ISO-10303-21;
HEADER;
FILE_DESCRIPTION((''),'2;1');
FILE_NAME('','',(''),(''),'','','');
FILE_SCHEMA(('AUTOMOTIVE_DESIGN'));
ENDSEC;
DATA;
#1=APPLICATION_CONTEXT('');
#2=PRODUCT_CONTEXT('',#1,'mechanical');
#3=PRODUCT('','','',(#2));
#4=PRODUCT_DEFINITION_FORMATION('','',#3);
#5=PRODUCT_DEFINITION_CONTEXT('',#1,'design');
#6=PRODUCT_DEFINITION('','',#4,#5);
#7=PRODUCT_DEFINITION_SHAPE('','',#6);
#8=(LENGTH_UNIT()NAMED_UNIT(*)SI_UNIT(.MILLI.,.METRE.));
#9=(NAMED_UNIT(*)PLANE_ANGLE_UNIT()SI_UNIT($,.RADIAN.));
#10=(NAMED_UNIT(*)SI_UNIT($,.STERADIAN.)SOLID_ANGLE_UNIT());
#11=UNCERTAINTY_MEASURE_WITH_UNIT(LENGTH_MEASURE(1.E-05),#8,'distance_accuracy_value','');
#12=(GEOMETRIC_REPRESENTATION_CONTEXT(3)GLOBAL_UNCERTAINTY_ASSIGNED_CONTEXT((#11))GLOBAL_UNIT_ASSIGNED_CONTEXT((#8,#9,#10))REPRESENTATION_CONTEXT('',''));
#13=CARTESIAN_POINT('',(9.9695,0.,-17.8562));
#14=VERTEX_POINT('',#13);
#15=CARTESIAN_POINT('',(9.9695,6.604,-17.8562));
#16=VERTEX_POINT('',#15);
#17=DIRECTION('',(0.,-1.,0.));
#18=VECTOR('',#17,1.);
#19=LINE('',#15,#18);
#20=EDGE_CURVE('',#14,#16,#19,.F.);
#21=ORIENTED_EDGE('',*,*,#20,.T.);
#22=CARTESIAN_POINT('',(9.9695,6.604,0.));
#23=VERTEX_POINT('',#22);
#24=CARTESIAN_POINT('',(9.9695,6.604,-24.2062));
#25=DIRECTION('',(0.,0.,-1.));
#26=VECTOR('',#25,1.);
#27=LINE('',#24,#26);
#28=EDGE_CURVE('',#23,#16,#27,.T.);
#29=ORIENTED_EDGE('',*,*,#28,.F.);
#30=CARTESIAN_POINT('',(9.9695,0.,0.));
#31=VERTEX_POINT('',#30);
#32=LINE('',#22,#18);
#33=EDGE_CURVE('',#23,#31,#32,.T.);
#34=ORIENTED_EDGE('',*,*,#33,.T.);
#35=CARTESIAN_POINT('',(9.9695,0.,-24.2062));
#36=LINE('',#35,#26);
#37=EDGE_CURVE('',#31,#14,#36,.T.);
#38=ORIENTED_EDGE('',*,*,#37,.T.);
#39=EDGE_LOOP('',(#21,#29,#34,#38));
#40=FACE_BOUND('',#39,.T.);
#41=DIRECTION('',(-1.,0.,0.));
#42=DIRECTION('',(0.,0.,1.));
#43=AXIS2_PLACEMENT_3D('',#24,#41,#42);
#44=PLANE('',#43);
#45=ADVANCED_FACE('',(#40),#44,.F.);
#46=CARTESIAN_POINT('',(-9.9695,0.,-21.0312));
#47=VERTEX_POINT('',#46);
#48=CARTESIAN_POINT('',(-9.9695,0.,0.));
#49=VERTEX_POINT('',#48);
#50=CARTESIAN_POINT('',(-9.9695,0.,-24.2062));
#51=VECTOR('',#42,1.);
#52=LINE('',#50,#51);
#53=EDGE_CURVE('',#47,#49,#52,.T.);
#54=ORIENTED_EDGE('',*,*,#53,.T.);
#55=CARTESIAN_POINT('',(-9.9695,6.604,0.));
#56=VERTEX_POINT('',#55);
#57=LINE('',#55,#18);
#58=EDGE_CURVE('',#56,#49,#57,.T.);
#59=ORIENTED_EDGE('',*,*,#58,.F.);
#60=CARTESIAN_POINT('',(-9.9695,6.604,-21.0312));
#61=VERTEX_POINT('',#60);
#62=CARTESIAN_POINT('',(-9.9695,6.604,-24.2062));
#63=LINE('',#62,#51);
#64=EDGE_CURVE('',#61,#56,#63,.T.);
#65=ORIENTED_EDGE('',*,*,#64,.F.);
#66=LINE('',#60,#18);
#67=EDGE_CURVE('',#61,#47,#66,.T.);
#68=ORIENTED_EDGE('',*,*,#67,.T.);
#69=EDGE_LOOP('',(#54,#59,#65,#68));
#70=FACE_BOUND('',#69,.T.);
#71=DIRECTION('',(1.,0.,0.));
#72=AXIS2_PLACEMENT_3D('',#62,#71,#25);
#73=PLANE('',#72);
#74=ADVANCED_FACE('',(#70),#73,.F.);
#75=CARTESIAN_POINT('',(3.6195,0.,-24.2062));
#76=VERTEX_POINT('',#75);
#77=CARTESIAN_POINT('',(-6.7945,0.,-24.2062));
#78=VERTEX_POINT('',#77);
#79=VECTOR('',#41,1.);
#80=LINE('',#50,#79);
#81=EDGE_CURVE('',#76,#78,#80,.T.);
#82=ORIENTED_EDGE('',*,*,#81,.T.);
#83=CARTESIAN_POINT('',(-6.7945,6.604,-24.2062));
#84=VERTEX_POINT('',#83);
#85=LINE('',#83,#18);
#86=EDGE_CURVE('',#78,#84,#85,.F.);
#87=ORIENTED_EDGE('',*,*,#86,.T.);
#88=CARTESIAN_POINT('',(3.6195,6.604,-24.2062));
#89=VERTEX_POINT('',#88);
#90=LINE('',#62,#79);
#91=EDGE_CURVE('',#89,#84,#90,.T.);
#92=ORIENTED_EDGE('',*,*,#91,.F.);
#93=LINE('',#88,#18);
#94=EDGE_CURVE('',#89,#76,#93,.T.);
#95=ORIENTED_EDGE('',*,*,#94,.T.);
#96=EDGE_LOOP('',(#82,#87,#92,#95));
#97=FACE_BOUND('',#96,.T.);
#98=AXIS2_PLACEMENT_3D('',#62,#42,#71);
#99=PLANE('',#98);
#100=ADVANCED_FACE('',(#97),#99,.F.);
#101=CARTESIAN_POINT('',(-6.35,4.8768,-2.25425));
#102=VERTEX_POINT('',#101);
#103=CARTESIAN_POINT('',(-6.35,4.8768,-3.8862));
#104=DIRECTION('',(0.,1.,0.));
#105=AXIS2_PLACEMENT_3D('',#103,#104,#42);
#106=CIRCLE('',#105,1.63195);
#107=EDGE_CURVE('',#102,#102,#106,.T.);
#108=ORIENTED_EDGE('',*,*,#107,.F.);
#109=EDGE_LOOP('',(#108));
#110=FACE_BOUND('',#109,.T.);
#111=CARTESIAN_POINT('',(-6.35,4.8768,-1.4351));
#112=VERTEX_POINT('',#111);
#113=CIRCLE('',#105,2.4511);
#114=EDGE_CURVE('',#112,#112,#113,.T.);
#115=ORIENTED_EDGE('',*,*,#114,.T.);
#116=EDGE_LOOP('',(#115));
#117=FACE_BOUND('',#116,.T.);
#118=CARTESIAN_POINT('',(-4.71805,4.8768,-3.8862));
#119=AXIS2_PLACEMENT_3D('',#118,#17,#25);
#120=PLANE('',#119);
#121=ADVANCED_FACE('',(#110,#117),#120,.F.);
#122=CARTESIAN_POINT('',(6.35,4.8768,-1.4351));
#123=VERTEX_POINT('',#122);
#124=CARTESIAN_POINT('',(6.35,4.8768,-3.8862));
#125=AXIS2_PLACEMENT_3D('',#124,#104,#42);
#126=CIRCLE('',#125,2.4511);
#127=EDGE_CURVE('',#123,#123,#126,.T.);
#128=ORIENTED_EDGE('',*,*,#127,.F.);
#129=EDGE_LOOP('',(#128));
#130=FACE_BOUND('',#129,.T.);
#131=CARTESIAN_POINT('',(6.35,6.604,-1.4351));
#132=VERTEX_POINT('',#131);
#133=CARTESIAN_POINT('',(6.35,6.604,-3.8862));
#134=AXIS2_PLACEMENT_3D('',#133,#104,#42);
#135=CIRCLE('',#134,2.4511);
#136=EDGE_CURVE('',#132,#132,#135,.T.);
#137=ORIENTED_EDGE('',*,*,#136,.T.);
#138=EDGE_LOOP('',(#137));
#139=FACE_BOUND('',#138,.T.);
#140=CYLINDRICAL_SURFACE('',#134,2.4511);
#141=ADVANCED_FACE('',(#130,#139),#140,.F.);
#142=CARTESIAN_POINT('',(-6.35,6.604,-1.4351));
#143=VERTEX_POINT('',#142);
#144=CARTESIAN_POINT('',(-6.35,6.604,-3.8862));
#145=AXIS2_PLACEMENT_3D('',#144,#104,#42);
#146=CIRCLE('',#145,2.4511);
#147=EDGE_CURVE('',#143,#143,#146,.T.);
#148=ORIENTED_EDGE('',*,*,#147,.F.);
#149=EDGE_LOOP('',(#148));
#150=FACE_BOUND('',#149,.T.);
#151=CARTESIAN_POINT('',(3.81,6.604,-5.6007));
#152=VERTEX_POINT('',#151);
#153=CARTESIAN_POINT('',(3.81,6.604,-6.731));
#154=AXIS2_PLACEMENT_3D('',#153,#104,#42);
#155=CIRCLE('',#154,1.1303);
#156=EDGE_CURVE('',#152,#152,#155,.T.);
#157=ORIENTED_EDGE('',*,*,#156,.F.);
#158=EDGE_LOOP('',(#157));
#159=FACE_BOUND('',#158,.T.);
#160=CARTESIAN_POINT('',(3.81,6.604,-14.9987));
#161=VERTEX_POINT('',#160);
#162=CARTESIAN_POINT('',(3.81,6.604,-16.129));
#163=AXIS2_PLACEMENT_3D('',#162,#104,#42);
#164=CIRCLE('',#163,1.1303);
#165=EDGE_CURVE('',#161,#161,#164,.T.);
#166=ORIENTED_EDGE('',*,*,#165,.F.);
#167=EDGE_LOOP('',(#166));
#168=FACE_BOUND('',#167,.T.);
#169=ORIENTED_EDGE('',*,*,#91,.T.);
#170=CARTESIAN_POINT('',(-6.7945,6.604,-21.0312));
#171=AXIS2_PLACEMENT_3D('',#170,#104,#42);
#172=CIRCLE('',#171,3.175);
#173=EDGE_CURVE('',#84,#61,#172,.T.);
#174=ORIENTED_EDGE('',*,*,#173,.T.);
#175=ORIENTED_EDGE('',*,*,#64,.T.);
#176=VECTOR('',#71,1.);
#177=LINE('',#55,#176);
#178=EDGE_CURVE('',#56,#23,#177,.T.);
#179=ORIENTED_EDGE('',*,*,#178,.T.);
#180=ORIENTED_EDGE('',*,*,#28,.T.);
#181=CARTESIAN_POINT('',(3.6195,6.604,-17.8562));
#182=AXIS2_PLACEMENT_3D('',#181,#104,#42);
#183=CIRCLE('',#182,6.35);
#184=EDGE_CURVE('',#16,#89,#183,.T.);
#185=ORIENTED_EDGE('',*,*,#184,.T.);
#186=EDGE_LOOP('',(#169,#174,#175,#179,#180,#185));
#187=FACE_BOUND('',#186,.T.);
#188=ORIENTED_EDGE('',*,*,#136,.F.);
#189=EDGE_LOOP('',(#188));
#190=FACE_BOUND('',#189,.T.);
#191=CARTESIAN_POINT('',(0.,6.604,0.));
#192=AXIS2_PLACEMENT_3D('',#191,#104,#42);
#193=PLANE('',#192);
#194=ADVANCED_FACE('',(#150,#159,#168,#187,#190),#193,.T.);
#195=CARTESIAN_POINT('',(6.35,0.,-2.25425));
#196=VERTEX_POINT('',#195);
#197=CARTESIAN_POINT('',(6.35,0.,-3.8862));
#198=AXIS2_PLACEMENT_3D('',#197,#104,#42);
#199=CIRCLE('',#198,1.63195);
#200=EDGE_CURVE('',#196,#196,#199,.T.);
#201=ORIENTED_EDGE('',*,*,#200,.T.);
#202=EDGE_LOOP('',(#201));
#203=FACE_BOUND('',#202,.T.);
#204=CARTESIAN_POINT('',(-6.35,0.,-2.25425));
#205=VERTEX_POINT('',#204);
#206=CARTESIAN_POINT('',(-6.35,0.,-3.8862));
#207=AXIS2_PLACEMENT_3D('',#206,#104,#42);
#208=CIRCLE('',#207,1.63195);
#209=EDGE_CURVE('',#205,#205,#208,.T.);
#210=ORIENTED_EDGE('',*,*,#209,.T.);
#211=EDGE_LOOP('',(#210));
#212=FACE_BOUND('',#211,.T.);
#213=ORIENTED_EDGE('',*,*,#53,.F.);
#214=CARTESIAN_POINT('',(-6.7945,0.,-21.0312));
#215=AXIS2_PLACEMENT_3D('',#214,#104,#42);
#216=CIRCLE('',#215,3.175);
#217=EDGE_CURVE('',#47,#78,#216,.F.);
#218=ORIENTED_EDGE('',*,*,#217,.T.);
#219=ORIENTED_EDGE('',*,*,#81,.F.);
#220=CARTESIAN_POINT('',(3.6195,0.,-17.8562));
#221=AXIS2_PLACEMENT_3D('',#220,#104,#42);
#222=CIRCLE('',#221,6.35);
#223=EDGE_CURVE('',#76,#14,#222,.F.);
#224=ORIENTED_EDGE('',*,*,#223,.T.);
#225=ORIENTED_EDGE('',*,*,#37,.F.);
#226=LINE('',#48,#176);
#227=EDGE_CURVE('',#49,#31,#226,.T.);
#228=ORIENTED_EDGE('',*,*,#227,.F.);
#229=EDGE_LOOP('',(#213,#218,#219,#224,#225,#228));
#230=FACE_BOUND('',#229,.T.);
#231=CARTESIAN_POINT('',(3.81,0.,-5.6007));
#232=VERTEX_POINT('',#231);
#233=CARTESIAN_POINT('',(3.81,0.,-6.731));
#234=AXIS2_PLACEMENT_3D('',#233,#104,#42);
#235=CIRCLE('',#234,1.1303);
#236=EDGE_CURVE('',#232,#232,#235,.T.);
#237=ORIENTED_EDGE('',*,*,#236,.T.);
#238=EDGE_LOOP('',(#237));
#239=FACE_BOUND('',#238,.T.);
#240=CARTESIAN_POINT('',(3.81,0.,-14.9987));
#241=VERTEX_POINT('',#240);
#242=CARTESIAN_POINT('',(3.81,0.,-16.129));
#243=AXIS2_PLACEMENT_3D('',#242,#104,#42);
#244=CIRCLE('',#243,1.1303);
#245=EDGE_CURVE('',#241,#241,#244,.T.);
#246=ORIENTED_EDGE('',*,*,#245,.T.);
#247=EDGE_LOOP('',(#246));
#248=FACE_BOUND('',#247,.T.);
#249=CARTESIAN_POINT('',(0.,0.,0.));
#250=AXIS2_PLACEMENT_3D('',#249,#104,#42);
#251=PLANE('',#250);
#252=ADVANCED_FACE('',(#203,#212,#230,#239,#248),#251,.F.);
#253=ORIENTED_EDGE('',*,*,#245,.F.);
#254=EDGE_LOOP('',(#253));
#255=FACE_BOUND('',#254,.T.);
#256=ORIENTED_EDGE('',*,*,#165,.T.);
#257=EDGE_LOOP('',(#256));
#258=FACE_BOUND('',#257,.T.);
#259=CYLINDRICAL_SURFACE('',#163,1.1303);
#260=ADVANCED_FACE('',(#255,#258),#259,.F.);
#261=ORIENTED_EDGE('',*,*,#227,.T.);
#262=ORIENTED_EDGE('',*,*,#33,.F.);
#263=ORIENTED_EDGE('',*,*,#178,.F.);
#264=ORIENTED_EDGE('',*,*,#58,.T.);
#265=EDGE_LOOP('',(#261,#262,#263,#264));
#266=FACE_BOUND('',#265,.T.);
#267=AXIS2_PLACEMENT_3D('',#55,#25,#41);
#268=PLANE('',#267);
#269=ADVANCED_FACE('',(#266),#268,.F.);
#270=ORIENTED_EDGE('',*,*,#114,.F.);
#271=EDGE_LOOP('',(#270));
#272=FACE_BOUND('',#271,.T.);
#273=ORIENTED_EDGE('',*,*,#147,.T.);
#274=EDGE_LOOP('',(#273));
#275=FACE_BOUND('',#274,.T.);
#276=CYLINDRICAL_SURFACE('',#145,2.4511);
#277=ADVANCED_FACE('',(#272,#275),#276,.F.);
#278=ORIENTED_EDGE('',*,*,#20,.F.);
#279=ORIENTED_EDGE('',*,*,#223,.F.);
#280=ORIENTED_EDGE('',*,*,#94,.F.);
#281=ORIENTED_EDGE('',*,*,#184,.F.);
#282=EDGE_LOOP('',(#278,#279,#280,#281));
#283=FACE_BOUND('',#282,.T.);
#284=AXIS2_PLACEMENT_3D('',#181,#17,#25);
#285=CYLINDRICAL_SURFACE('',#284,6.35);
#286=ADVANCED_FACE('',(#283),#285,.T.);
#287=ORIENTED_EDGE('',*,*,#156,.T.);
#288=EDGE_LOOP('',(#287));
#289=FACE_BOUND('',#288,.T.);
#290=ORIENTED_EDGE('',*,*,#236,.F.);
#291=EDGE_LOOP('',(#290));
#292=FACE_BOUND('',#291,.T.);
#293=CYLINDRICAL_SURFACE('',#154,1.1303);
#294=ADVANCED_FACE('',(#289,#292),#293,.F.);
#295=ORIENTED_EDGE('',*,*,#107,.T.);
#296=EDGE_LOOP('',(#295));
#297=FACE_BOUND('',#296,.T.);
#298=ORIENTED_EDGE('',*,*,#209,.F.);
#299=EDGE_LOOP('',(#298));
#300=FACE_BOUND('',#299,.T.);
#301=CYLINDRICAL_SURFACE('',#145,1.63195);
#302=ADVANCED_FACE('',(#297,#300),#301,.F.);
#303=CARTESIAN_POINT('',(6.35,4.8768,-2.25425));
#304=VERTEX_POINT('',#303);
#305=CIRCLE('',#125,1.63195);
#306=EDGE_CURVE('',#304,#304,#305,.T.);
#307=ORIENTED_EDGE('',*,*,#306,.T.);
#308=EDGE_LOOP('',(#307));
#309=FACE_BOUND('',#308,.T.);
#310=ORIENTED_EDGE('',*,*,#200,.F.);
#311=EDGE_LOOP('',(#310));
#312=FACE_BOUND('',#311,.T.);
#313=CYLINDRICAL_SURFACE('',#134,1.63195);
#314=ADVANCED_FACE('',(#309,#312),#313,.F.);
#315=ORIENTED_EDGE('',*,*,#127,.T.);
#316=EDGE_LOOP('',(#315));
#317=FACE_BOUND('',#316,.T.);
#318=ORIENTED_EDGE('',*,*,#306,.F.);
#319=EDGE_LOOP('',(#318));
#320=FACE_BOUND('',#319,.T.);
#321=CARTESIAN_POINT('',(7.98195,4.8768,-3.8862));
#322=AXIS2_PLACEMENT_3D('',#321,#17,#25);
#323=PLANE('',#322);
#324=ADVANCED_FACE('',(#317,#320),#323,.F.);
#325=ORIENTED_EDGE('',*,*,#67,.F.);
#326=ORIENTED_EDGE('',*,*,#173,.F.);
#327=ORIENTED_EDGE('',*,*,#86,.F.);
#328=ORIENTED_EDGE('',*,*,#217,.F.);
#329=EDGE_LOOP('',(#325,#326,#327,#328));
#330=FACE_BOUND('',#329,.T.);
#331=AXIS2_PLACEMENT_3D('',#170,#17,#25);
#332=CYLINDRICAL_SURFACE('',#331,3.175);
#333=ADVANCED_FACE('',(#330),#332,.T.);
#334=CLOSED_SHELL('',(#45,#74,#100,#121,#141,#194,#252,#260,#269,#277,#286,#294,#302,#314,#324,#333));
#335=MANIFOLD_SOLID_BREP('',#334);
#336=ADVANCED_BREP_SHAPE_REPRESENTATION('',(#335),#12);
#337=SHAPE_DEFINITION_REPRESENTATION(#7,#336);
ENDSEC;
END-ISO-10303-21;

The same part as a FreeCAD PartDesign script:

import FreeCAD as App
import Part
import Sketcher
Q = App.Units.Quantity


def edges_at(feature, points):
    """Names of the edges that pass closest to the given points."""
    edges = feature.Shape.Edges
    near = lambda p: min(range(len(edges)), key=lambda i: edges[i].distToShape(Part.Vertex(*p))[0])
    return sorted({f"Edge{near(p) + 1}" for p in points})


def add_polygon(sketch, points):
    """Adds a closed chain of lines whose ends are joined by coincident constraints."""
    first, n = sketch.GeometryCount, len(points)
    for a, b in zip(points, points[1:] + points[:1]):
        sketch.addGeometry(Part.LineSegment(App.Vector(*a, 0), App.Vector(*b, 0)), False)
    for i in range(n):
        sketch.addConstraint(Sketcher.Constraint("Coincident", first + i, 2, first + (i + 1) % n, 1))

doc = App.newDocument("Part")
params = doc.addObject("Spreadsheet::Sheet", "Params")
for row, (alias, value) in enumerate([
    ("sketch1_width", "0.785 in"),
    ("sketch1_height", "0.953 in"),
    ("pad1_length", "0.26 in"),
    ("sketch2_diameter", "0.089 in"),
    ("hole_diameter", "0.089 in"),
    ("hole_depth", "0.26 in"),
    ("hole2_diameter", "0.1285 in"),
    ("hole2_cbore_diameter", "0.193 in"),
    ("hole2_cbore_depth", "0.068 in"),
    ("fillet_radius", "0.25 in"),
    ("fillet2_radius", "0.125 in"),
], start=1):
    params.set(f"A{row}", alias)
    params.set(f"B{row}", "=" + value)
    params.setAlias(f"B{row}", alias)

body = doc.addObject("PartDesign::Body", "Body")

sketch1 = body.newObject("Sketcher::SketchObject", "Sketch")
sketch1.AttachmentSupport = (doc.getObject("XZ_Plane"), [""])
sketch1.MapMode = "FlatFace"
add_polygon(sketch1, [(-10, -24), (-10, 0), (10, 0), (10, -24)])
sketch1.addConstraint(Sketcher.Constraint("Vertical", 0))
sketch1.addConstraint(Sketcher.Constraint("Horizontal", 1))
sketch1.addConstraint(Sketcher.Constraint("Vertical", 2))
sketch1.addConstraint(Sketcher.Constraint("Horizontal", 3))
sketch1.addConstraint(Sketcher.Constraint("Symmetric", 0, 2, 1, 2, -1, 1))
sketch1.addConstraint(Sketcher.Constraint("DistanceX", 1, 1, 1, 2, Q("0.785 in")))
sketch1.addConstraint(Sketcher.Constraint("DistanceY", 0, 1, 0, 2, Q("0.953 in")))
sketch1.setExpression("Constraints[9]", "Params.sketch1_width")
sketch1.setExpression("Constraints[10]", "Params.sketch1_height")
pad1 = body.newObject("PartDesign::Pad", "Pad")
pad1.Profile = sketch1
pad1.setExpression("Length", "Params.pad1_length")
pad1.Reversed = True

sketch2 = body.newObject("Sketcher::SketchObject", "Sketch001")
sketch2.AttachmentSupport = (doc.getObject("XZ_Plane"), [""])
sketch2.MapMode = "FlatFace"
sketch2.AttachmentOffset = App.Placement(App.Vector(0, 0, -0.26 * 25.4), App.Rotation())
sketch2.addGeometry(Part.Circle(App.Vector(3.8, -16.1, 0), App.Vector(0, 0, 1), 1.1), False)
sketch2.addGeometry(Part.Circle(App.Vector(3.8, -6.7, 0), App.Vector(0, 0, 1), 1.1), False)
sketch2.addConstraint(Sketcher.Constraint("Equal", 0, 1))
sketch2.addConstraint(Sketcher.Constraint("Vertical", 0, 3, 1, 3))
sketch2.addConstraint(Sketcher.Constraint("Diameter", 0, Q("0.089 in")))
sketch2.addConstraint(Sketcher.Constraint("DistanceX", -1, 1, 0, 3, Q("0.15 in")))
sketch2.addConstraint(Sketcher.Constraint("DistanceY", 0, 3, 1, 3, Q("0.37 in")))
sketch2.addConstraint(Sketcher.Constraint("DistanceY", 0, 3, -1, 1, Q("0.635 in")))
sketch2.setExpression("Constraints[2]", "Params.sketch2_diameter")
doc.recompute()
hole = body.newObject("PartDesign::Hole", "Hole")
hole.Profile = sketch2
hole.ThreadType = "None"
hole.setExpression("Diameter", "Params.hole_diameter")
hole.DepthType = "Dimension"
hole.setExpression("Depth", "Params.hole_depth")
hole.DrillPoint = "Flat"
hole.Reversed = True

sketch3 = body.newObject("Sketcher::SketchObject", "Sketch002")
sketch3.AttachmentSupport = (doc.getObject("XZ_Plane"), [""])
sketch3.MapMode = "FlatFace"
sketch3.AttachmentOffset = App.Placement(App.Vector(0, 0, -0.26 * 25.4), App.Rotation())
sketch3.addGeometry(Part.Circle(App.Vector(-6.3, -3.9, 0), App.Vector(0, 0, 1), 1.6), False)
sketch3.addGeometry(Part.Circle(App.Vector(6.3, -3.9, 0), App.Vector(0, 0, 1), 1.6), False)
sketch3.addConstraint(Sketcher.Constraint("Equal", 0, 1))
sketch3.addConstraint(Sketcher.Constraint("Symmetric", 0, 3, 1, 3, -2))
sketch3.addConstraint(Sketcher.Constraint("Diameter", 0, Q("0.1285 in")))
sketch3.addConstraint(Sketcher.Constraint("DistanceX", 0, 3, 1, 3, Q("0.5 in")))
sketch3.addConstraint(Sketcher.Constraint("DistanceY", 0, 3, -1, 1, Q("0.153 in")))
doc.recompute()
hole2 = body.newObject("PartDesign::Hole", "Hole001")
hole2.Profile = sketch3
hole2.ThreadType = "None"
hole2.setExpression("Diameter", "Params.hole2_diameter")
hole2.DepthType = "ThroughAll"
hole2.HoleCutType = "Counterbore"
hole2.setExpression("HoleCutDiameter", "Params.hole2_cbore_diameter")
hole2.setExpression("HoleCutDepth", "Params.hole2_cbore_depth")
hole2.Reversed = True
doc.recompute()

fillet = body.newObject("PartDesign::Fillet", "Fillet")
fillet.Base = (hole2, edges_at(hole2, [(9.97, 3.302, -24.206)]))
fillet.setExpression("Radius", "Params.fillet_radius")
doc.recompute()

fillet2 = body.newObject("PartDesign::Fillet", "Fillet001")
fillet2.Base = (fillet, edges_at(fillet, [(-9.97, 3.302, -24.206)]))
fillet2.setExpression("Radius", "Params.fillet2_radius")

doc.recompute()
